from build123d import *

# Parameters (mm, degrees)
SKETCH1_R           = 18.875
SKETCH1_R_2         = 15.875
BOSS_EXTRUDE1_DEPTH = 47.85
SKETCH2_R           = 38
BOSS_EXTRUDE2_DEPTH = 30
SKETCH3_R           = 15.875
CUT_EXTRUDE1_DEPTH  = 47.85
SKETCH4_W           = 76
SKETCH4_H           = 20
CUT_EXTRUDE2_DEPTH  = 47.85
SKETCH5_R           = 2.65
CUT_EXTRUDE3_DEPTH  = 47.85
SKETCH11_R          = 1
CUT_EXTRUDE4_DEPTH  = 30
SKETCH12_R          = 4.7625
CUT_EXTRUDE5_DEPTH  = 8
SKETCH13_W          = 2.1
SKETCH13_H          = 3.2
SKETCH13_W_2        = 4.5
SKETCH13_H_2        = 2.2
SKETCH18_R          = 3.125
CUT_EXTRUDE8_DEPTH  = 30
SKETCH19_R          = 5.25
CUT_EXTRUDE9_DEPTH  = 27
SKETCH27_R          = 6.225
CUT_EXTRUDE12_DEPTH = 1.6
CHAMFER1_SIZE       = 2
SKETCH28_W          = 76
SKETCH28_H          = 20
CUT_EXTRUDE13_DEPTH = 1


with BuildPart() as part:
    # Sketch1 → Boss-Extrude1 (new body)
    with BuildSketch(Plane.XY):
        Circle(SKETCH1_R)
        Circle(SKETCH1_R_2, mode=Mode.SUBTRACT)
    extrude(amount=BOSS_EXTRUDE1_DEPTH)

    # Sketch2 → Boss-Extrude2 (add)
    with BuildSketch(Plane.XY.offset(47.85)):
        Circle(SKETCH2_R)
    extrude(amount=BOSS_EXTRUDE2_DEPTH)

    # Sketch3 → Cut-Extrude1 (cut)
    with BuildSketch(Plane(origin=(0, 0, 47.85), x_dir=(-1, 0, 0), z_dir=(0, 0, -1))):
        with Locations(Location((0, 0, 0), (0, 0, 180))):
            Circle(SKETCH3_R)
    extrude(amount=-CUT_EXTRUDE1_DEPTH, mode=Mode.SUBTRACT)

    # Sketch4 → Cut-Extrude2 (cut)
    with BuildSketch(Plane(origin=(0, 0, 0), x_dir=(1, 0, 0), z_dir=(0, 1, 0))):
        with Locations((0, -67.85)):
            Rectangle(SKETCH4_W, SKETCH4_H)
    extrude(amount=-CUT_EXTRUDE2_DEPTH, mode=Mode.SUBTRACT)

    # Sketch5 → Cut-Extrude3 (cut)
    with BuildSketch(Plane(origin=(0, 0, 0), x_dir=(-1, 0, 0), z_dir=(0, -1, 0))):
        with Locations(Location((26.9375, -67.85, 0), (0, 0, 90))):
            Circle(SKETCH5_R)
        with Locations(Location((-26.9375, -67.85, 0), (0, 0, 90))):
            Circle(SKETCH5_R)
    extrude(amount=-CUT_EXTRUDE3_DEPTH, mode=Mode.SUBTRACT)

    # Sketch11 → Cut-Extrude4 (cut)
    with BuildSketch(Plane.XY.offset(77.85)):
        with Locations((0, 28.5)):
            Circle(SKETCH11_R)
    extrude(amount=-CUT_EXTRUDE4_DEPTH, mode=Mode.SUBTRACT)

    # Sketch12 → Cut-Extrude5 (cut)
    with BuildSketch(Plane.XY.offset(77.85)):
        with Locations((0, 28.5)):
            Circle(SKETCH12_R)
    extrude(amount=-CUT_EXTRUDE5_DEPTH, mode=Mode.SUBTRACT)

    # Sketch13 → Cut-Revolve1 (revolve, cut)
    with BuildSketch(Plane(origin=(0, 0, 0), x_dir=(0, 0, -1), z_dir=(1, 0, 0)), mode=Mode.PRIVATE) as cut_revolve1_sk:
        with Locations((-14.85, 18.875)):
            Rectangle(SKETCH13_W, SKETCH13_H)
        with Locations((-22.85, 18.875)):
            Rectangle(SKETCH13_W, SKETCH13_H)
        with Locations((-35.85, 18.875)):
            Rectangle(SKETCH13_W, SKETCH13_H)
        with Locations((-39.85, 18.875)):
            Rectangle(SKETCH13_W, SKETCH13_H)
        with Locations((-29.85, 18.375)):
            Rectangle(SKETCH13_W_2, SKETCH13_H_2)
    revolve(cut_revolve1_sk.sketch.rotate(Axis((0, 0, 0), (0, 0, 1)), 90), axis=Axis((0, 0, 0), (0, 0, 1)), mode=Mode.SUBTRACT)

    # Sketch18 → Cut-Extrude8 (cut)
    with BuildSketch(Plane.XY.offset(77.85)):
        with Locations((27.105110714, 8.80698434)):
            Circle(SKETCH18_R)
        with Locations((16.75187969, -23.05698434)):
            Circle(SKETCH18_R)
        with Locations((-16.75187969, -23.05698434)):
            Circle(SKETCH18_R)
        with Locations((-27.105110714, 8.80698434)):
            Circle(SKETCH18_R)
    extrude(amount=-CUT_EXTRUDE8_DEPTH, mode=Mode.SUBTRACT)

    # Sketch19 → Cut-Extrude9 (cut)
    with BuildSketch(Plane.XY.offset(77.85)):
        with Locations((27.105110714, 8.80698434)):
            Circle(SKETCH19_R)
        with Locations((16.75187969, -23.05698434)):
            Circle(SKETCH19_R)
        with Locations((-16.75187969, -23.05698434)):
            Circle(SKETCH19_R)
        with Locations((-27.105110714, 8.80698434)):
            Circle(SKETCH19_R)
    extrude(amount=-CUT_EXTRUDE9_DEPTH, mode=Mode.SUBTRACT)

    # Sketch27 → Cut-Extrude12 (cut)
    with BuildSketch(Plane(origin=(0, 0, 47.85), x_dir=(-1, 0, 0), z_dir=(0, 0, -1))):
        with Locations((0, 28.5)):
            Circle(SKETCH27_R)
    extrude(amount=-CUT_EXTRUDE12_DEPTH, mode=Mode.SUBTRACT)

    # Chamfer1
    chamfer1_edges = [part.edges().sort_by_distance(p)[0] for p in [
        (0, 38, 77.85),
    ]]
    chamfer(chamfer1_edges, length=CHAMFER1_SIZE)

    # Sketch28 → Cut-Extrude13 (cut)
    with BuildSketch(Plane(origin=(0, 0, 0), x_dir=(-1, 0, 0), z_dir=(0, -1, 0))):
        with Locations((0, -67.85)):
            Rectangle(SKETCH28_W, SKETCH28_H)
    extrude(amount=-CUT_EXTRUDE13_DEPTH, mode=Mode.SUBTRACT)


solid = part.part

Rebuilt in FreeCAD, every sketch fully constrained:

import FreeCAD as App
import Part
import Sketcher

V = App.Vector


def edges_at(feature, points):
    """Names of the edges that pass closest to the given points."""
    edges = feature.Shape.Edges
    near = lambda p: min(range(len(edges)), key=lambda i: edges[i].distToShape(Part.Vertex(*p))[0])
    return sorted({f"Edge{near(p) + 1}" for p in points})

doc = App.newDocument("Part")
body = doc.addObject("PartDesign::Body", "Body")

# Sketch on XY plane
sketch1 = body.newObject("Sketcher::SketchObject", "Sketch")
sketch1.AttachmentSupport = (doc.getObject("XY_Plane"), [""])
sketch1.MapMode = "FlatFace"
sketch1.addGeometry(Part.Circle(V(0, 0, 0), V(0, 0, 1), 18.875), False)
sketch1.addGeometry(Part.Circle(V(0, 0, 0), V(0, 0, 1), 15.875), False)
sketch1.addConstraint(Sketcher.Constraint("Coincident", 0, 3, -1, 1))
sketch1.addConstraint(Sketcher.Constraint("Coincident", 1, 3, -1, 1))
sketch1.addConstraint(Sketcher.Constraint("Diameter", 0, 37.75))
sketch1.addConstraint(Sketcher.Constraint("Diameter", 1, 31.75))
pad1 = body.newObject("PartDesign::Pad", "Pad")
pad1.Profile = sketch1
pad1.Length = 47.85

# Sketch on XY plane
sketch2 = body.newObject("Sketcher::SketchObject", "Sketch001")
sketch2.AttachmentSupport = (doc.getObject("XY_Plane"), [""])
sketch2.MapMode = "FlatFace"
sketch2.AttachmentOffset = App.Placement(V(0, 0, 47.85), App.Rotation())
sketch2.addGeometry(Part.Circle(V(0, 0, 0), V(0, 0, 1), 38), False)
sketch2.addConstraint(Sketcher.Constraint("Coincident", 0, 3, -1, 1))
sketch2.addConstraint(Sketcher.Constraint("Diameter", 0, 76.0))
pad2 = body.newObject("PartDesign::Pad", "Pad001")
pad2.Profile = sketch2
pad2.Length = 30

# Sketch on XY plane
sketch3 = body.newObject("Sketcher::SketchObject", "Sketch002")
sketch3.AttachmentSupport = (doc.getObject("XY_Plane"), [""])
sketch3.MapMode = "FlatFace"
sketch3.AttachmentOffset = App.Placement(V(0, 0, 47.85), App.Rotation())
sketch3.addGeometry(Part.Circle(V(0, 0, 0), V(0, 0, 1), 15.875), False)
sketch3.addConstraint(Sketcher.Constraint("Coincident", 0, 3, -1, 1))
sketch3.addConstraint(Sketcher.Constraint("Diameter", 0, 31.75))
pocket1 = body.newObject("PartDesign::Pocket", "Pocket")
pocket1.Profile = sketch3
pocket1.Length = 47.85
pocket1.Reversed = True

# Sketch on XZ plane
sketch4 = body.newObject("Sketcher::SketchObject", "Sketch003")
sketch4.AttachmentSupport = (doc.getObject("XZ_Plane"), [""])
sketch4.MapMode = "FlatFace"
sketch4.addGeometry(Part.LineSegment(V(-38, 57.85, 0), V(-38, 77.85, 0)), False)
sketch4.addGeometry(Part.LineSegment(V(-38, 77.85, 0), V(38, 77.85, 0)), False)
sketch4.addGeometry(Part.LineSegment(V(38, 77.85, 0), V(38, 57.85, 0)), False)
sketch4.addGeometry(Part.LineSegment(V(38, 57.85, 0), V(-38, 57.85, 0)), False)
sketch4.addConstraint(Sketcher.Constraint("Coincident", 0, 2, 1, 1))
sketch4.addConstraint(Sketcher.Constraint("Coincident", 1, 2, 2, 1))
sketch4.addConstraint(Sketcher.Constraint("Coincident", 2, 2, 3, 1))
sketch4.addConstraint(Sketcher.Constraint("Coincident", 3, 2, 0, 1))
sketch4.addConstraint(Sketcher.Constraint("Vertical", 0))
sketch4.addConstraint(Sketcher.Constraint("Horizontal", 1))
sketch4.addConstraint(Sketcher.Constraint("Vertical", 2))
sketch4.addConstraint(Sketcher.Constraint("Horizontal", 3))
sketch4.addConstraint(Sketcher.Constraint("DistanceX", 1, 1, 1, 2, 76.0))
sketch4.addConstraint(Sketcher.Constraint("DistanceY", 0, 1, 0, 2, 20.0))
sketch4.addConstraint(Sketcher.Constraint("DistanceX", 0, 2, -1, 1, 38.0))
sketch4.addConstraint(Sketcher.Constraint("DistanceY", -1, 1, 0, 2, 77.85))
pocket2 = body.newObject("PartDesign::Pocket", "Pocket001")
pocket2.Profile = sketch4
pocket2.Length = 47.85
pocket2.Reversed = True

# Sketch on XZ plane
sketch5 = body.newObject("Sketcher::SketchObject", "Sketch004")
sketch5.AttachmentSupport = (doc.getObject("XZ_Plane"), [""])
sketch5.MapMode = "FlatFace"
sketch5.addGeometry(Part.Circle(V(-26.9375, 67.85, 0), V(0, 0, 1), 2.65), False)
sketch5.addGeometry(Part.Circle(V(26.9375, 67.85, 0), V(0, 0, 1), 2.65), False)
sketch5.addConstraint(Sketcher.Constraint("Equal", 0, 1))
sketch5.addConstraint(Sketcher.Constraint("Symmetric", 0, 3, 1, 3, -2))
sketch5.addConstraint(Sketcher.Constraint("Diameter", 0, 5.3))
sketch5.addConstraint(Sketcher.Constraint("DistanceY", -1, 1, 0, 3, 67.85))
sketch5.addConstraint(Sketcher.Constraint("DistanceX", 0, 3, 1, 3, 53.875))
pocket3 = body.newObject("PartDesign::Pocket", "Pocket002")
pocket3.Profile = sketch5
pocket3.Length = 47.85

# Sketch on XY plane
sketch6 = body.newObject("Sketcher::SketchObject", "Sketch005")
sketch6.AttachmentSupport = (doc.getObject("XY_Plane"), [""])
sketch6.MapMode = "FlatFace"
sketch6.AttachmentOffset = App.Placement(V(0, 0, 77.85), App.Rotation())
sketch6.addGeometry(Part.Circle(V(0, 28.5, 0), V(0, 0, 1), 1), False)
sketch6.addConstraint(Sketcher.Constraint("PointOnObject", 0, 3, -2))
sketch6.addConstraint(Sketcher.Constraint("Diameter", 0, 2.0))
sketch6.addConstraint(Sketcher.Constraint("DistanceY", -1, 1, 0, 3, 28.5))
pocket4 = body.newObject("PartDesign::Pocket", "Pocket003")
pocket4.Profile = sketch6
pocket4.Length = 30

# Sketch on XY plane
sketch7 = body.newObject("Sketcher::SketchObject", "Sketch006")
sketch7.AttachmentSupport = (doc.getObject("XY_Plane"), [""])
sketch7.MapMode = "FlatFace"
sketch7.AttachmentOffset = App.Placement(V(0, 0, 77.85), App.Rotation())
sketch7.addGeometry(Part.Circle(V(0, 28.5, 0), V(0, 0, 1), 4.7625), False)
sketch7.addConstraint(Sketcher.Constraint("PointOnObject", 0, 3, -2))
sketch7.addConstraint(Sketcher.Constraint("Diameter", 0, 9.525))
sketch7.addConstraint(Sketcher.Constraint("DistanceY", -1, 1, 0, 3, 28.5))
pocket5 = body.newObject("PartDesign::Pocket", "Pocket004")
pocket5.Profile = sketch7
pocket5.Length = 8

# Sketch on YZ plane
sketch8 = body.newObject("Sketcher::SketchObject", "Sketch007")
sketch8.AttachmentSupport = (doc.getObject("YZ_Plane"), [""])
sketch8.MapMode = "FlatFace"
sketch8.addGeometry(Part.LineSegment(V(20.475, 15.9, 0), V(17.275, 15.9, 0)), False)
sketch8.addGeometry(Part.LineSegment(V(17.275, 15.9, 0), V(17.275, 13.8, 0)), False)
sketch8.addGeometry(Part.LineSegment(V(17.275, 13.8, 0), V(20.475, 13.8, 0)), False)
sketch8.addGeometry(Part.LineSegment(V(20.475, 13.8, 0), V(20.475, 15.9, 0)), False)
sketch8.addGeometry(Part.LineSegment(V(20.475, 23.9, 0), V(17.275, 23.9, 0)), False)
sketch8.addGeometry(Part.LineSegment(V(17.275, 23.9, 0), V(17.275, 21.8, 0)), False)
sketch8.addGeometry(Part.LineSegment(V(17.275, 21.8, 0), V(20.475, 21.8, 0)), False)
sketch8.addGeometry(Part.LineSegment(V(20.475, 21.8, 0), V(20.475, 23.9, 0)), False)
sketch8.addGeometry(Part.LineSegment(V(20.475, 36.9, 0), V(17.275, 36.9, 0)), False)
sketch8.addGeometry(Part.LineSegment(V(17.275, 36.9, 0), V(17.275, 34.8, 0)), False)
sketch8.addGeometry(Part.LineSegment(V(17.275, 34.8, 0), V(20.475, 34.8, 0)), False)
sketch8.addGeometry(Part.LineSegment(V(20.475, 34.8, 0), V(20.475, 36.9, 0)), False)
sketch8.addGeometry(Part.LineSegment(V(20.475, 40.9, 0), V(17.275, 40.9, 0)), False)
sketch8.addGeometry(Part.LineSegment(V(17.275, 40.9, 0), V(17.275, 38.8, 0)), False)
sketch8.addGeometry(Part.LineSegment(V(17.275, 38.8, 0), V(20.475, 38.8, 0)), False)
sketch8.addGeometry(Part.LineSegment(V(20.475, 38.8, 0), V(20.475, 40.9, 0)), False)
sketch8.addGeometry(Part.LineSegment(V(19.475, 32.1, 0), V(17.275, 32.1, 0)), False)
sketch8.addGeometry(Part.LineSegment(V(17.275, 32.1, 0), V(17.275, 27.6, 0)), False)
sketch8.addGeometry(Part.LineSegment(V(17.275, 27.6, 0), V(19.475, 27.6, 0)), False)
sketch8.addGeometry(Part.LineSegment(V(19.475, 27.6, 0), V(19.475, 32.1, 0)), False)
sketch8.addConstraint(Sketcher.Constraint("Coincident", 0, 2, 1, 1))
sketch8.addConstraint(Sketcher.Constraint("Coincident", 1, 2, 2, 1))
sketch8.addConstraint(Sketcher.Constraint("Coincident", 2, 2, 3, 1))
sketch8.addConstraint(Sketcher.Constraint("Coincident", 3, 2, 0, 1))
sketch8.addConstraint(Sketcher.Constraint("Coincident", 4, 2, 5, 1))
sketch8.addConstraint(Sketcher.Constraint("Coincident", 5, 2, 6, 1))
sketch8.addConstraint(Sketcher.Constraint("Coincident", 6, 2, 7, 1))
sketch8.addConstraint(Sketcher.Constraint("Coincident", 7, 2, 4, 1))
sketch8.addConstraint(Sketcher.Constraint("Coincident", 8, 2, 9, 1))
sketch8.addConstraint(Sketcher.Constraint("Coincident", 9, 2, 10, 1))
sketch8.addConstraint(Sketcher.Constraint("Coincident", 10, 2, 11, 1))
sketch8.addConstraint(Sketcher.Constraint("Coincident", 11, 2, 8, 1))
sketch8.addConstraint(Sketcher.Constraint("Coincident", 12, 2, 13, 1))
sketch8.addConstraint(Sketcher.Constraint("Coincident", 13, 2, 14, 1))
sketch8.addConstraint(Sketcher.Constraint("Coincident", 14, 2, 15, 1))
sketch8.addConstraint(Sketcher.Constraint("Coincident", 15, 2, 12, 1))
sketch8.addConstraint(Sketcher.Constraint("Coincident", 16, 2, 17, 1))
sketch8.addConstraint(Sketcher.Constraint("Coincident", 17, 2, 18, 1))
sketch8.addConstraint(Sketcher.Constraint("Coincident", 18, 2, 19, 1))
sketch8.addConstraint(Sketcher.Constraint("Coincident", 19, 2, 16, 1))
sketch8.addConstraint(Sketcher.Constraint("Horizontal", 0))
sketch8.addConstraint(Sketcher.Constraint("Vertical", 1))
sketch8.addConstraint(Sketcher.Constraint("Horizontal", 2))
sketch8.addConstraint(Sketcher.Constraint("Vertical", 3))
sketch8.addConstraint(Sketcher.Constraint("Horizontal", 4))
sketch8.addConstraint(Sketcher.Constraint("Vertical", 5))
sketch8.addConstraint(Sketcher.Constraint("Horizontal", 6))
sketch8.addConstraint(Sketcher.Constraint("Vertical", 7))
sketch8.addConstraint(Sketcher.Constraint("Horizontal", 8))
sketch8.addConstraint(Sketcher.Constraint("Vertical", 9))
sketch8.addConstraint(Sketcher.Constraint("Horizontal", 10))
sketch8.addConstraint(Sketcher.Constraint("Vertical", 11))
sketch8.addConstraint(Sketcher.Constraint("Horizontal", 12))
sketch8.addConstraint(Sketcher.Constraint("Vertical", 13))
sketch8.addConstraint(Sketcher.Constraint("Horizontal", 14))
sketch8.addConstraint(Sketcher.Constraint("Vertical", 15))
sketch8.addConstraint(Sketcher.Constraint("Horizontal", 16))
sketch8.addConstraint(Sketcher.Constraint("Vertical", 17))
sketch8.addConstraint(Sketcher.Constraint("Horizontal", 18))
sketch8.addConstraint(Sketcher.Constraint("Vertical", 19))
sketch8.addConstraint(Sketcher.Constraint("Vertical", 1, 2, 4, 2))
sketch8.addConstraint(Sketcher.Constraint("Vertical", 3, 2, 6, 2))
sketch8.addConstraint(Sketcher.Constraint("Vertical", 5, 2, 8, 2))
sketch8.addConstraint(Sketcher.Constraint("Vertical", 7, 2, 10, 2))
sketch8.addConstraint(Sketcher.Constraint("Vertical", 9, 2, 12, 2))
sketch8.addConstraint(Sketcher.Constraint("Vertical", 11, 2, 14, 2))
sketch8.addConstraint(Sketcher.Constraint("Vertical", 13, 2, 16, 2))
sketch8.addConstraint(Sketcher.Constraint("Equal", 3, 5))
sketch8.addConstraint(Sketcher.Constraint("Equal", 7, 9))
sketch8.addConstraint(Sketcher.Constraint("Equal", 11, 13))
sketch8.addConstraint(Sketcher.Constraint("DistanceX", 0, 2, 0, 1, 3.2))
sketch8.addConstraint(Sketcher.Constraint("DistanceX", 16, 2, 16, 1, 2.2))
sketch8.addConstraint(Sketcher.Constraint("DistanceY", 1, 2, 1, 1, 2.1))
sketch8.addConstraint(Sketcher.Constraint("DistanceY", 17, 2, 17, 1, 4.5))
sketch8.addConstraint(Sketcher.Constraint("DistanceY", 0, 2, 4, 2, 8.0))
sketch8.addConstraint(Sketcher.Constraint("DistanceY", 4, 2, 8, 2, 13.0))
sketch8.addConstraint(Sketcher.Constraint("DistanceY", 8, 2, 12, 2, 4.0))
sketch8.addConstraint(Sketcher.Constraint("DistanceY", -1, 1, 0, 2, 15.9))
sketch8.addConstraint(Sketcher.Constraint("DistanceY", -1, 1, 16, 2, 32.1))
sketch8.addConstraint(Sketcher.Constraint("DistanceX", -1, 1, 0, 2, 17.275))
groove = body.newObject("PartDesign::Groove", "Groove")
groove.Profile = sketch8
groove.ReferenceAxis = (sketch8, ["V_Axis"])
groove.Angle = 360

# Sketch on XY plane
sketch9 = body.newObject("Sketcher::SketchObject", "Sketch008")
sketch9.AttachmentSupport = (doc.getObject("XY_Plane"), [""])
sketch9.MapMode = "FlatFace"
sketch9.AttachmentOffset = App.Placement(V(0, 0, 77.85), App.Rotation())
sketch9.addGeometry(Part.Circle(V(27.105111, 8.806984, 0), V(0, 0, 1), 3.125), False)
sketch9.addGeometry(Part.Circle(V(16.75188, -23.056984, 0), V(0, 0, 1), 3.125), False)
sketch9.addGeometry(Part.Circle(V(-16.75188, -23.056984, 0), V(0, 0, 1), 3.125), False)
sketch9.addGeometry(Part.Circle(V(-27.105111, 8.806984, 0), V(0, 0, 1), 3.125), False)
sketch9.addConstraint(Sketcher.Constraint("Equal", 0, 1))
sketch9.addConstraint(Sketcher.Constraint("Equal", 1, 2))
sketch9.addConstraint(Sketcher.Constraint("Equal", 2, 3))
sketch9.addConstraint(Sketcher.Constraint("Symmetric", 1, 3, 2, 3, -2))
sketch9.addConstraint(Sketcher.Constraint("Symmetric", 0, 3, 3, 3, -2))
sketch9.addConstraint(Sketcher.Constraint("Diameter", 0, 6.25))
sketch9.addConstraint(Sketcher.Constraint("DistanceX", -1, 1, 0, 3, 27.105111))
sketch9.addConstraint(Sketcher.Constraint("DistanceX", -1, 1, 1, 3, 16.75188))
sketch9.addConstraint(Sketcher.Constraint("DistanceY", 1, 3, 0, 3, 31.863969))
sketch9.addConstraint(Sketcher.Constraint("DistanceY", -1, 1, 0, 3, 8.806984))
pocket6 = body.newObject("PartDesign::Pocket", "Pocket005")
pocket6.Profile = sketch9
pocket6.Length = 30

# Sketch on XY plane
sketch10 = body.newObject("Sketcher::SketchObject", "Sketch009")
sketch10.AttachmentSupport = (doc.getObject("XY_Plane"), [""])
sketch10.MapMode = "FlatFace"
sketch10.AttachmentOffset = App.Placement(V(0, 0, 77.85), App.Rotation())
sketch10.addGeometry(Part.Circle(V(27.105111, 8.806984, 0), V(0, 0, 1), 5.25), False)
sketch10.addGeometry(Part.Circle(V(16.75188, -23.056984, 0), V(0, 0, 1), 5.25), False)
sketch10.addGeometry(Part.Circle(V(-16.75188, -23.056984, 0), V(0, 0, 1), 5.25), False)
sketch10.addGeometry(Part.Circle(V(-27.105111, 8.806984, 0), V(0, 0, 1), 5.25), False)
sketch10.addConstraint(Sketcher.Constraint("Equal", 0, 1))
sketch10.addConstraint(Sketcher.Constraint("Equal", 1, 2))
sketch10.addConstraint(Sketcher.Constraint("Equal", 2, 3))
sketch10.addConstraint(Sketcher.Constraint("Symmetric", 1, 3, 2, 3, -2))
sketch10.addConstraint(Sketcher.Constraint("Symmetric", 0, 3, 3, 3, -2))
sketch10.addConstraint(Sketcher.Constraint("Diameter", 0, 10.5))
sketch10.addConstraint(Sketcher.Constraint("DistanceX", -1, 1, 0, 3, 27.105111))
sketch10.addConstraint(Sketcher.Constraint("DistanceX", -1, 1, 1, 3, 16.75188))
sketch10.addConstraint(Sketcher.Constraint("DistanceY", 1, 3, 0, 3, 31.863969))
sketch10.addConstraint(Sketcher.Constraint("DistanceY", -1, 1, 0, 3, 8.806984))
pocket7 = body.newObject("PartDesign::Pocket", "Pocket006")
pocket7.Profile = sketch10
pocket7.Length = 27

# Sketch on XY plane
sketch11 = body.newObject("Sketcher::SketchObject", "Sketch010")
sketch11.AttachmentSupport = (doc.getObject("XY_Plane"), [""])
sketch11.MapMode = "FlatFace"
sketch11.AttachmentOffset = App.Placement(V(0, 0, 47.85), App.Rotation())
sketch11.addGeometry(Part.Circle(V(0, 28.5, 0), V(0, 0, 1), 6.225), False)
sketch11.addConstraint(Sketcher.Constraint("PointOnObject", 0, 3, -2))
sketch11.addConstraint(Sketcher.Constraint("Diameter", 0, 12.45))
sketch11.addConstraint(Sketcher.Constraint("DistanceY", -1, 1, 0, 3, 28.5))
pocket8 = body.newObject("PartDesign::Pocket", "Pocket007")
pocket8.Profile = sketch11
pocket8.Length = 1.6
pocket8.Reversed = True
doc.recompute()

chamfer = body.newObject("PartDesign::Chamfer", "Chamfer")
chamfer.Base = (pocket8, edges_at(pocket8, [(0, 38, 77.85)]))
chamfer.Size = 2

# Sketch on XZ plane
sketch12 = body.newObject("Sketcher::SketchObject", "Sketch011")
sketch12.AttachmentSupport = (doc.getObject("XZ_Plane"), [""])
sketch12.MapMode = "FlatFace"
sketch12.addGeometry(Part.LineSegment(V(38, 57.85, 0), V(38, 77.85, 0)), False)
sketch12.addGeometry(Part.LineSegment(V(38, 77.85, 0), V(-38, 77.85, 0)), False)
sketch12.addGeometry(Part.LineSegment(V(-38, 77.85, 0), V(-38, 57.85, 0)), False)
sketch12.addGeometry(Part.LineSegment(V(-38, 57.85, 0), V(38, 57.85, 0)), False)
sketch12.addConstraint(Sketcher.Constraint("Coincident", 0, 2, 1, 1))
sketch12.addConstraint(Sketcher.Constraint("Coincident", 1, 2, 2, 1))
sketch12.addConstraint(Sketcher.Constraint("Coincident", 2, 2, 3, 1))
sketch12.addConstraint(Sketcher.Constraint("Coincident", 3, 2, 0, 1))
sketch12.addConstraint(Sketcher.Constraint("Vertical", 0))
sketch12.addConstraint(Sketcher.Constraint("Horizontal", 1))
sketch12.addConstraint(Sketcher.Constraint("Vertical", 2))
sketch12.addConstraint(Sketcher.Constraint("Horizontal", 3))
sketch12.addConstraint(Sketcher.Constraint("DistanceX", 1, 2, 1, 1, 76.0))
sketch12.addConstraint(Sketcher.Constraint("DistanceY", 0, 1, 0, 2, 20.0))
sketch12.addConstraint(Sketcher.Constraint("DistanceX", -1, 1, 0, 2, 38.0))
sketch12.addConstraint(Sketcher.Constraint("DistanceY", -1, 1, 0, 2, 77.85))
pocket9 = body.newObject("PartDesign::Pocket", "Pocket008")
pocket9.Profile = sketch12
pocket9.Length = 1

doc.recompute()
